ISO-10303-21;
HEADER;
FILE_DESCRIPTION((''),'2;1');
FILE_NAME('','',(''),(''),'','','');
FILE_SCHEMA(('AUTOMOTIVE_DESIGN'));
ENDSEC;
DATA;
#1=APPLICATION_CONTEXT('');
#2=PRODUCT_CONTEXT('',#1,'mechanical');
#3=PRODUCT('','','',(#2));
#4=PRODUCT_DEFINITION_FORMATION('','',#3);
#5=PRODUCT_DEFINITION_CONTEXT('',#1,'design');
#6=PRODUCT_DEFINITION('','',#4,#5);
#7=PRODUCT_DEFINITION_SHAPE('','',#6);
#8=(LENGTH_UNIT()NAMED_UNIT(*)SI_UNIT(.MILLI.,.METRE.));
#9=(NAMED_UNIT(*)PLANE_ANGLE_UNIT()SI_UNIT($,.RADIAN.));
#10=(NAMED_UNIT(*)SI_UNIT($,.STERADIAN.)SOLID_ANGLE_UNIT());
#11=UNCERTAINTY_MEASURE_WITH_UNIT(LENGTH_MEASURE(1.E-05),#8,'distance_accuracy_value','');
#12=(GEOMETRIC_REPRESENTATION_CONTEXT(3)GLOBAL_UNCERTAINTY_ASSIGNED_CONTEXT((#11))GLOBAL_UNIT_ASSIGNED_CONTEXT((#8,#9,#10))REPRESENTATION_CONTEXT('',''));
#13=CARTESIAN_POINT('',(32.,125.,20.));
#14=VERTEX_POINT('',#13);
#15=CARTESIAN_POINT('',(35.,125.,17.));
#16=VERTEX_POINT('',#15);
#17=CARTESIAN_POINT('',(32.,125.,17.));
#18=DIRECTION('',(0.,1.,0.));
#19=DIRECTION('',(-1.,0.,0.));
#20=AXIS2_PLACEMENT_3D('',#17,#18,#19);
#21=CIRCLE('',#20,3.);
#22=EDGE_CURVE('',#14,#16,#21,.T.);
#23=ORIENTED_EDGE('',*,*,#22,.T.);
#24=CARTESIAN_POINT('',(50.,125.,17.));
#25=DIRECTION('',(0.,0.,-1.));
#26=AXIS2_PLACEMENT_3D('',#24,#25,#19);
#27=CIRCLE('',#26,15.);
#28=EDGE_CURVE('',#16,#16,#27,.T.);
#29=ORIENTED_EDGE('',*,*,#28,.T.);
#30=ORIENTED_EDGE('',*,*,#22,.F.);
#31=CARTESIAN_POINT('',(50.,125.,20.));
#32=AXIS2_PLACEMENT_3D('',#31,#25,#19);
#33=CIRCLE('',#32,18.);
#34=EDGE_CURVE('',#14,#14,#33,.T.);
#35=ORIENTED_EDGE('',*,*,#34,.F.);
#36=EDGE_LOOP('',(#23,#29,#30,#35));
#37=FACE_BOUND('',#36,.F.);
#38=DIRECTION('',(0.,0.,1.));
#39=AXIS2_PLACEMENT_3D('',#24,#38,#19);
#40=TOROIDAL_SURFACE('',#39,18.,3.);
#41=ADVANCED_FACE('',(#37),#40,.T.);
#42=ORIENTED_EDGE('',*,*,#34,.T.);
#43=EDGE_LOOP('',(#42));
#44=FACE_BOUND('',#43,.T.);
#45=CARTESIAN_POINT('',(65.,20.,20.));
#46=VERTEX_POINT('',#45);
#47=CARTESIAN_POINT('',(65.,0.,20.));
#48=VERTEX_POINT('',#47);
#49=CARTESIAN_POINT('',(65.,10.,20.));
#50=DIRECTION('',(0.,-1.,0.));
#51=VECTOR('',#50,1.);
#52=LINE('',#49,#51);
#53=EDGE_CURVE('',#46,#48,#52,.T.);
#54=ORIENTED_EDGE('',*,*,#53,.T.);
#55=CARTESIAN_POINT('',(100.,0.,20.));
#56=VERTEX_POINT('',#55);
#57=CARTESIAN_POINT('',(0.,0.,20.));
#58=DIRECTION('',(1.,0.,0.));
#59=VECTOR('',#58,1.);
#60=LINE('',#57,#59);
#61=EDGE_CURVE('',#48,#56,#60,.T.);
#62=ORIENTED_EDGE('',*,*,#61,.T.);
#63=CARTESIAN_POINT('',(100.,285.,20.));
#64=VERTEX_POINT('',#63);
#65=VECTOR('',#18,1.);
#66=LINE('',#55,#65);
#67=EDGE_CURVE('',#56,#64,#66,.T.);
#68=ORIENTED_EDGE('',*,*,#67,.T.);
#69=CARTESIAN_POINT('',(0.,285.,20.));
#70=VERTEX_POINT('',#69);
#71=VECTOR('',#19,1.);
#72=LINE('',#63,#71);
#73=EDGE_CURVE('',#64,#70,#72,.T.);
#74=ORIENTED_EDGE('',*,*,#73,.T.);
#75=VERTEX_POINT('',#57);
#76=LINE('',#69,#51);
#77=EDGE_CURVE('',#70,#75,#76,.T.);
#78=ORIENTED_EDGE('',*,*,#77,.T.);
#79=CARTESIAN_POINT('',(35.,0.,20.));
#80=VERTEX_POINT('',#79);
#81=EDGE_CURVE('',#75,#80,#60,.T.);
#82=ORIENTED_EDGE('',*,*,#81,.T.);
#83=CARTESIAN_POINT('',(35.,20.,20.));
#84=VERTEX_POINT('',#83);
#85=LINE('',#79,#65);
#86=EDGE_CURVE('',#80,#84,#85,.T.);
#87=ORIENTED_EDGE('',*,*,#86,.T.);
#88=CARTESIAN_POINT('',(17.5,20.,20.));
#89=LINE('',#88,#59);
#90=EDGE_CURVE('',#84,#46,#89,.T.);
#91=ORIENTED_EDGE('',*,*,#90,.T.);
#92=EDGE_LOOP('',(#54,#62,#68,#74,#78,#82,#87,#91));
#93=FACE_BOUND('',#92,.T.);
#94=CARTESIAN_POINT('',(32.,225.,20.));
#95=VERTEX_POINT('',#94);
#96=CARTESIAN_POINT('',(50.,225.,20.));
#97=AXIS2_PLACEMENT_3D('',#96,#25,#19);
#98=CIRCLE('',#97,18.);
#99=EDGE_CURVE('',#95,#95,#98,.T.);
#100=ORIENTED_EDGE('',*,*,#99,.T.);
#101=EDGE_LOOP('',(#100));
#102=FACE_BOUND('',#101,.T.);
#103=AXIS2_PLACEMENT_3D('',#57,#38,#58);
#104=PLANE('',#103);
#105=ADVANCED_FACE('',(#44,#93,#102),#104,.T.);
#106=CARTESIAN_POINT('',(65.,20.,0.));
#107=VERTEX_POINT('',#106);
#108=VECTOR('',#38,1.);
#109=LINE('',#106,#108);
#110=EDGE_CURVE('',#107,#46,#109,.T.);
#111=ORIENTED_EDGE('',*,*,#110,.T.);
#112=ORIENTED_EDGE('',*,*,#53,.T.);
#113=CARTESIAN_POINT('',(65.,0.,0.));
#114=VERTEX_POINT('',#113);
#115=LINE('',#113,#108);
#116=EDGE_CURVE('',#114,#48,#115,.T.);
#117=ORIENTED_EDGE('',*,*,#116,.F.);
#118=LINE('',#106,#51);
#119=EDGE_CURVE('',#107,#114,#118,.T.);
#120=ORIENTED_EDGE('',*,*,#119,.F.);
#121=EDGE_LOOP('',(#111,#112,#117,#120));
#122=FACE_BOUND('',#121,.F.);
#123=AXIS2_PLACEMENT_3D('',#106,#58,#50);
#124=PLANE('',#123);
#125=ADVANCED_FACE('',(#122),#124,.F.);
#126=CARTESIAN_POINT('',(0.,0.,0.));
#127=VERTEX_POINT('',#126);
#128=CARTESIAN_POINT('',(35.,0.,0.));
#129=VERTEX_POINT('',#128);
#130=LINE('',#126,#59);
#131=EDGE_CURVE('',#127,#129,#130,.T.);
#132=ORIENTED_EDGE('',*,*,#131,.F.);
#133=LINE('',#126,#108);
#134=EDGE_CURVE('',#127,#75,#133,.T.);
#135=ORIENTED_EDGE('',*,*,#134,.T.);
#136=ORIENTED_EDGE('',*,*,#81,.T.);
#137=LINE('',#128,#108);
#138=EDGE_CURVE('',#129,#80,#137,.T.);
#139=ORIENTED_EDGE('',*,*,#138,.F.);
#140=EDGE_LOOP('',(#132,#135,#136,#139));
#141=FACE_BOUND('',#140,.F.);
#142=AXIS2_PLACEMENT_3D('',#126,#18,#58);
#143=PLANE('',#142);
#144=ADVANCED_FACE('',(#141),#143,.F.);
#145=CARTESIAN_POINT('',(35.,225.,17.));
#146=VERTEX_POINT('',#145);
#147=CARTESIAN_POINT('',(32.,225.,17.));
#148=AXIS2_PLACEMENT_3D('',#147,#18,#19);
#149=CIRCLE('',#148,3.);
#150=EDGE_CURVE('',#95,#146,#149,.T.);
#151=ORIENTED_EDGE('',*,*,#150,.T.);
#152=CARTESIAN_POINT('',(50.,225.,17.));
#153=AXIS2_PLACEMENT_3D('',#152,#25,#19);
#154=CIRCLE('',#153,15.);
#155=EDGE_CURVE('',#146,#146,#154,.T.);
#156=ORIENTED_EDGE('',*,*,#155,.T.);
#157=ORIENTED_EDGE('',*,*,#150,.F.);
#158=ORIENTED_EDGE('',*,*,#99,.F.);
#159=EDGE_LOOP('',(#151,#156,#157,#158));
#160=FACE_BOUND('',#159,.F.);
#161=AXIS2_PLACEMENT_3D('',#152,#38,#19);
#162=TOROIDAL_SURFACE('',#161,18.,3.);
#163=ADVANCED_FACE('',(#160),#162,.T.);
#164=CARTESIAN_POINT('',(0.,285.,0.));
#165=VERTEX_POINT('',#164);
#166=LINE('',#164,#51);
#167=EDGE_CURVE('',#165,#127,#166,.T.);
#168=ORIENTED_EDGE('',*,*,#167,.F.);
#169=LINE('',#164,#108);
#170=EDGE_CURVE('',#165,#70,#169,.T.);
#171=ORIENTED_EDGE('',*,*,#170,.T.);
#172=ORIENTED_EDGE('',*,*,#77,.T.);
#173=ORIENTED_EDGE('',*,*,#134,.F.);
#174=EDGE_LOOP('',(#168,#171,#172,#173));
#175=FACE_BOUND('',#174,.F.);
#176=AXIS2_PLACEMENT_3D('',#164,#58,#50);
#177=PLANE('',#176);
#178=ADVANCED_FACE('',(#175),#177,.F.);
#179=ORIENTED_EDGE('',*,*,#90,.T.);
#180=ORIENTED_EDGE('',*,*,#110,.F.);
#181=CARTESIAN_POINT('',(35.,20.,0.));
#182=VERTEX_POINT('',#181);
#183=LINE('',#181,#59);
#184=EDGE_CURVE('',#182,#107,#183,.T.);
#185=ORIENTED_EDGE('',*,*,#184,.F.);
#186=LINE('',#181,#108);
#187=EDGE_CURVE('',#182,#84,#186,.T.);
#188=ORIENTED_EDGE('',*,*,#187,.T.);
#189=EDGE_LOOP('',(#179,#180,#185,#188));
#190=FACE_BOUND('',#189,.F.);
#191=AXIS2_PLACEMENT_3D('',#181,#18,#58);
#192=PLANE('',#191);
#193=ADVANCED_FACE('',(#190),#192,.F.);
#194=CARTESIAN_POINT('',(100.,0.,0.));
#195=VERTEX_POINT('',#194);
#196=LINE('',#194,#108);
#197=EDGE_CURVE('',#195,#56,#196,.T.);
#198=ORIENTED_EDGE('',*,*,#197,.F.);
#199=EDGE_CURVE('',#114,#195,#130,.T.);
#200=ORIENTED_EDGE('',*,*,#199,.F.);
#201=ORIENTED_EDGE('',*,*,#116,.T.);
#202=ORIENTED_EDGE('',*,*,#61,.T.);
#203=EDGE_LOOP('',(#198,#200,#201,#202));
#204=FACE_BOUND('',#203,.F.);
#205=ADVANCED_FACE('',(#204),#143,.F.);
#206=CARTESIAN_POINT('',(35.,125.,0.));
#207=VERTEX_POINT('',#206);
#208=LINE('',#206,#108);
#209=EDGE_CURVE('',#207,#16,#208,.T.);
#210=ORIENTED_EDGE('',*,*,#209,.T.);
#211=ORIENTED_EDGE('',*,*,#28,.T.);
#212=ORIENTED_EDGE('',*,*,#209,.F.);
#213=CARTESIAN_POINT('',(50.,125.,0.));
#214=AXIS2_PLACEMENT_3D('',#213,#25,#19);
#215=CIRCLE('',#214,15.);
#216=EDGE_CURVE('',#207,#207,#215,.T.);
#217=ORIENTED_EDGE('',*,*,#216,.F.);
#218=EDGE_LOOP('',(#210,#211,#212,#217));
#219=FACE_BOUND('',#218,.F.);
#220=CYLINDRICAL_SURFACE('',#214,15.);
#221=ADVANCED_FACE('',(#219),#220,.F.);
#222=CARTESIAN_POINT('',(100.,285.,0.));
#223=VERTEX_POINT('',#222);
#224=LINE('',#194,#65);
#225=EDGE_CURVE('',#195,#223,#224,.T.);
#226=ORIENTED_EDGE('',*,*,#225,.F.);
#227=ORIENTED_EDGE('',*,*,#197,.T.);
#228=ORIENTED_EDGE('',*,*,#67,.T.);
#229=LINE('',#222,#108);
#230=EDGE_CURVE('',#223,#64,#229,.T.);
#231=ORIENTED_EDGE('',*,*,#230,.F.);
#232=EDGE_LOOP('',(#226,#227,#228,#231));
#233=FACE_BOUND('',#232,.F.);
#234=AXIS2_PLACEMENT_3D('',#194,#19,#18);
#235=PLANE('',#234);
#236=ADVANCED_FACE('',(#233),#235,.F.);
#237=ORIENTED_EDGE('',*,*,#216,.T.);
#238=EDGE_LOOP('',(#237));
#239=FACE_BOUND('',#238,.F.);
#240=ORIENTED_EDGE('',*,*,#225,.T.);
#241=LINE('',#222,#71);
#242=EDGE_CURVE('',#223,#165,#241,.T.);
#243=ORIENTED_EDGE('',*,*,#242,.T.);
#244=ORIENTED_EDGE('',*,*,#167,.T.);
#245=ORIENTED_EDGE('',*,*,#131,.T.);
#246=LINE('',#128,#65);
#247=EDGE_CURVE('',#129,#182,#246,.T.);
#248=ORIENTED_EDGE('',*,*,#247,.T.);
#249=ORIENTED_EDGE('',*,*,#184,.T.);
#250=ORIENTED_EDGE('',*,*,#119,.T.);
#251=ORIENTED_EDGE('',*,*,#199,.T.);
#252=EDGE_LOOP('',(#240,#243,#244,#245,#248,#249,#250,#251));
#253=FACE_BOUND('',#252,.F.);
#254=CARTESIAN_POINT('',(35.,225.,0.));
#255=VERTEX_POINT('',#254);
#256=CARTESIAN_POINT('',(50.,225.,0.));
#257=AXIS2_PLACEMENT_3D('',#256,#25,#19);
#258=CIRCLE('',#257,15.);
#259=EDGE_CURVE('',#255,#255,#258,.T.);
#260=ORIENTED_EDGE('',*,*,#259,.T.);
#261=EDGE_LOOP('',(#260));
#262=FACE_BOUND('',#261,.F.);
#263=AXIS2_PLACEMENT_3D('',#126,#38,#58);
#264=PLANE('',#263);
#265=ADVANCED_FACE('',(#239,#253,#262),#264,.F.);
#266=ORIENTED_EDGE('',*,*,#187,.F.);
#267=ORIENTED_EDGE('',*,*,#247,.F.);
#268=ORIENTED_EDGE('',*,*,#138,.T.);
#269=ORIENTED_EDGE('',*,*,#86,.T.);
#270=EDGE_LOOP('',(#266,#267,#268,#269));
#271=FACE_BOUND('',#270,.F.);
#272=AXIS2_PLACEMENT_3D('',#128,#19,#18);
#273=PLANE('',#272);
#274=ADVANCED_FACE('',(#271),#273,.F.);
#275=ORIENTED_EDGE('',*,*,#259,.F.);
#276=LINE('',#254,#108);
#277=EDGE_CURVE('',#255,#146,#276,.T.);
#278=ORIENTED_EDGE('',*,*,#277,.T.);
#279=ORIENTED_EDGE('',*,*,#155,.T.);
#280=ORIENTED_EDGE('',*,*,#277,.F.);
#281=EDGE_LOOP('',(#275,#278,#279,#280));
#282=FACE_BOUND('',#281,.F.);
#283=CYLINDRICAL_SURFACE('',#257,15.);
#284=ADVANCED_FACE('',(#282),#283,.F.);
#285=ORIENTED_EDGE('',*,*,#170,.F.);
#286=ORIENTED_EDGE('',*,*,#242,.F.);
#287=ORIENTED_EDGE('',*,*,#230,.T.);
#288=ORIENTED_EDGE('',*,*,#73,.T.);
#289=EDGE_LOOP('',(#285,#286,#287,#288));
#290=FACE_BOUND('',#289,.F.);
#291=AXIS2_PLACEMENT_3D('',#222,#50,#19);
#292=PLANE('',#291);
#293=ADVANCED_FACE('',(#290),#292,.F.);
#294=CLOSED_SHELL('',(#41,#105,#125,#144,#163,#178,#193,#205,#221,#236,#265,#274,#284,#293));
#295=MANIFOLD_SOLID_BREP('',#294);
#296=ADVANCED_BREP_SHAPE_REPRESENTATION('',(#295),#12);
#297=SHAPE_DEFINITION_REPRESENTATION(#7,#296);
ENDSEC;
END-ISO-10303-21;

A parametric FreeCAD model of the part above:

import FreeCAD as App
import Part
import Sketcher

V = App.Vector
Q = App.Units.Quantity


def edges_at(feature, points):
    """Names of the edges that pass closest to the given points."""
    edges = feature.Shape.Edges
    near = lambda p: min(range(len(edges)), key=lambda i: edges[i].distToShape(Part.Vertex(*p))[0])
    return sorted({f"Edge{near(p) + 1}" for p in points})


def add_polygon(sketch, points):
    """Adds a closed chain of lines whose ends are joined by coincident constraints."""
    first, n = sketch.GeometryCount, len(points)
    for a, b in zip(points, points[1:] + points[:1]):
        sketch.addGeometry(Part.LineSegment(App.Vector(*a, 0), App.Vector(*b, 0)), False)
    for i in range(n):
        sketch.addConstraint(Sketcher.Constraint("Coincident", first + i, 2, first + (i + 1) % n, 1))

doc = App.newDocument("Part")
body = doc.addObject("PartDesign::Body", "Body")

# Sketch on XY plane
sketch1 = doc.addObject("Sketcher::SketchObject", "Sketch")
body.addObject(sketch1)
sketch1.AttachmentSupport = (doc.XY_Plane, [""])
sketch1.MapMode = "FlatFace"
add_polygon(sketch1, [(0, 285), (0, 0), (100, 0), (100, 285)])  # lines 0-3
sketch1.addConstraint(Sketcher.Constraint("Vertical", 0))
sketch1.addConstraint(Sketcher.Constraint("Horizontal", 1))
sketch1.addConstraint(Sketcher.Constraint("Vertical", 2))
sketch1.addConstraint(Sketcher.Constraint("Horizontal", 3))
sketch1.addConstraint(Sketcher.Constraint("Coincident", 0, 2, -1, 1))
sketch1.addConstraint(Sketcher.Constraint("DistanceX", 1, 1, 1, 2, Q("100 mm")))
sketch1.addConstraint(Sketcher.Constraint("DistanceY", 0, 2, 0, 1, Q("285 mm")))
pad1 = doc.addObject("PartDesign::Pad", "Pad")
body.addObject(pad1)
pad1.Profile = sketch1
pad1.Length = 20

# Sketch on XY plane
sketch2 = doc.addObject("Sketcher::SketchObject", "Sketch001")
body.addObject(sketch2)
sketch2.AttachmentSupport = (doc.XY_Plane, [""])
sketch2.MapMode = "FlatFace"
sketch2.addGeometry(Part.Circle(V(50, 125, 0), V(0, 0, 1), 15), False)
sketch2.addGeometry(Part.Circle(V(50, 225, 0), V(0, 0, 1), 15), False)
sketch2.addConstraint(Sketcher.Constraint("Equal", 0, 1))
sketch2.addConstraint(Sketcher.Constraint("Vertical", 0, 3, 1, 3))
sketch2.addConstraint(Sketcher.Constraint("Diameter", 0, Q("30 mm")))
sketch2.addConstraint(Sketcher.Constraint("DistanceX", -1, 1, 0, 3, Q("50 mm")))
sketch2.addConstraint(Sketcher.Constraint("DistanceY", 0, 3, 1, 3, Q("100 mm")))
sketch2.addConstraint(Sketcher.Constraint("DistanceY", -1, 1, 0, 3, Q("125 mm")))
pocket1 = doc.addObject("PartDesign::Pocket", "Pocket")
body.addObject(pocket1)
pocket1.Profile = sketch2
pocket1.Type = "UpToFirst"
pocket1.Reversed = True

# Sketch on XY plane
sketch3 = doc.addObject("Sketcher::SketchObject", "Sketch002")
body.addObject(sketch3)
sketch3.AttachmentSupport = (doc.XY_Plane, [""])
sketch3.MapMode = "FlatFace"
add_polygon(sketch3, [(65, 0), (35, 0), (35, 20), (65, 20)])  # lines 0-3
sketch3.addConstraint(Sketcher.Constraint("Horizontal", 0))
sketch3.addConstraint(Sketcher.Constraint("Vertical", 1))
sketch3.addConstraint(Sketcher.Constraint("Horizontal", 2))
sketch3.addConstraint(Sketcher.Constraint("Vertical", 3))
sketch3.addConstraint(Sketcher.Constraint("PointOnObject", 0, 2, -1))
sketch3.addConstraint(Sketcher.Constraint("DistanceX", 0, 2, 0, 1, Q("30 mm")))
sketch3.addConstraint(Sketcher.Constraint("DistanceY", 1, 1, 1, 2, Q("20 mm")))
sketch3.addConstraint(Sketcher.Constraint("DistanceX", -1, 1, 0, 2, Q("35 mm")))
pocket2 = doc.addObject("PartDesign::Pocket", "Pocket001")
body.addObject(pocket2)
pocket2.Profile = sketch3
pocket2.Type = "UpToFirst"
pocket2.Reversed = True
doc.recompute()

fillet = doc.addObject("PartDesign::Fillet", "Fillet")
body.addObject(fillet)
fillet.Base = (pocket2, edges_at(pocket2, [(65, 125, 20), (65, 225, 20)]))
fillet.Radius = 3

doc.recompute()
